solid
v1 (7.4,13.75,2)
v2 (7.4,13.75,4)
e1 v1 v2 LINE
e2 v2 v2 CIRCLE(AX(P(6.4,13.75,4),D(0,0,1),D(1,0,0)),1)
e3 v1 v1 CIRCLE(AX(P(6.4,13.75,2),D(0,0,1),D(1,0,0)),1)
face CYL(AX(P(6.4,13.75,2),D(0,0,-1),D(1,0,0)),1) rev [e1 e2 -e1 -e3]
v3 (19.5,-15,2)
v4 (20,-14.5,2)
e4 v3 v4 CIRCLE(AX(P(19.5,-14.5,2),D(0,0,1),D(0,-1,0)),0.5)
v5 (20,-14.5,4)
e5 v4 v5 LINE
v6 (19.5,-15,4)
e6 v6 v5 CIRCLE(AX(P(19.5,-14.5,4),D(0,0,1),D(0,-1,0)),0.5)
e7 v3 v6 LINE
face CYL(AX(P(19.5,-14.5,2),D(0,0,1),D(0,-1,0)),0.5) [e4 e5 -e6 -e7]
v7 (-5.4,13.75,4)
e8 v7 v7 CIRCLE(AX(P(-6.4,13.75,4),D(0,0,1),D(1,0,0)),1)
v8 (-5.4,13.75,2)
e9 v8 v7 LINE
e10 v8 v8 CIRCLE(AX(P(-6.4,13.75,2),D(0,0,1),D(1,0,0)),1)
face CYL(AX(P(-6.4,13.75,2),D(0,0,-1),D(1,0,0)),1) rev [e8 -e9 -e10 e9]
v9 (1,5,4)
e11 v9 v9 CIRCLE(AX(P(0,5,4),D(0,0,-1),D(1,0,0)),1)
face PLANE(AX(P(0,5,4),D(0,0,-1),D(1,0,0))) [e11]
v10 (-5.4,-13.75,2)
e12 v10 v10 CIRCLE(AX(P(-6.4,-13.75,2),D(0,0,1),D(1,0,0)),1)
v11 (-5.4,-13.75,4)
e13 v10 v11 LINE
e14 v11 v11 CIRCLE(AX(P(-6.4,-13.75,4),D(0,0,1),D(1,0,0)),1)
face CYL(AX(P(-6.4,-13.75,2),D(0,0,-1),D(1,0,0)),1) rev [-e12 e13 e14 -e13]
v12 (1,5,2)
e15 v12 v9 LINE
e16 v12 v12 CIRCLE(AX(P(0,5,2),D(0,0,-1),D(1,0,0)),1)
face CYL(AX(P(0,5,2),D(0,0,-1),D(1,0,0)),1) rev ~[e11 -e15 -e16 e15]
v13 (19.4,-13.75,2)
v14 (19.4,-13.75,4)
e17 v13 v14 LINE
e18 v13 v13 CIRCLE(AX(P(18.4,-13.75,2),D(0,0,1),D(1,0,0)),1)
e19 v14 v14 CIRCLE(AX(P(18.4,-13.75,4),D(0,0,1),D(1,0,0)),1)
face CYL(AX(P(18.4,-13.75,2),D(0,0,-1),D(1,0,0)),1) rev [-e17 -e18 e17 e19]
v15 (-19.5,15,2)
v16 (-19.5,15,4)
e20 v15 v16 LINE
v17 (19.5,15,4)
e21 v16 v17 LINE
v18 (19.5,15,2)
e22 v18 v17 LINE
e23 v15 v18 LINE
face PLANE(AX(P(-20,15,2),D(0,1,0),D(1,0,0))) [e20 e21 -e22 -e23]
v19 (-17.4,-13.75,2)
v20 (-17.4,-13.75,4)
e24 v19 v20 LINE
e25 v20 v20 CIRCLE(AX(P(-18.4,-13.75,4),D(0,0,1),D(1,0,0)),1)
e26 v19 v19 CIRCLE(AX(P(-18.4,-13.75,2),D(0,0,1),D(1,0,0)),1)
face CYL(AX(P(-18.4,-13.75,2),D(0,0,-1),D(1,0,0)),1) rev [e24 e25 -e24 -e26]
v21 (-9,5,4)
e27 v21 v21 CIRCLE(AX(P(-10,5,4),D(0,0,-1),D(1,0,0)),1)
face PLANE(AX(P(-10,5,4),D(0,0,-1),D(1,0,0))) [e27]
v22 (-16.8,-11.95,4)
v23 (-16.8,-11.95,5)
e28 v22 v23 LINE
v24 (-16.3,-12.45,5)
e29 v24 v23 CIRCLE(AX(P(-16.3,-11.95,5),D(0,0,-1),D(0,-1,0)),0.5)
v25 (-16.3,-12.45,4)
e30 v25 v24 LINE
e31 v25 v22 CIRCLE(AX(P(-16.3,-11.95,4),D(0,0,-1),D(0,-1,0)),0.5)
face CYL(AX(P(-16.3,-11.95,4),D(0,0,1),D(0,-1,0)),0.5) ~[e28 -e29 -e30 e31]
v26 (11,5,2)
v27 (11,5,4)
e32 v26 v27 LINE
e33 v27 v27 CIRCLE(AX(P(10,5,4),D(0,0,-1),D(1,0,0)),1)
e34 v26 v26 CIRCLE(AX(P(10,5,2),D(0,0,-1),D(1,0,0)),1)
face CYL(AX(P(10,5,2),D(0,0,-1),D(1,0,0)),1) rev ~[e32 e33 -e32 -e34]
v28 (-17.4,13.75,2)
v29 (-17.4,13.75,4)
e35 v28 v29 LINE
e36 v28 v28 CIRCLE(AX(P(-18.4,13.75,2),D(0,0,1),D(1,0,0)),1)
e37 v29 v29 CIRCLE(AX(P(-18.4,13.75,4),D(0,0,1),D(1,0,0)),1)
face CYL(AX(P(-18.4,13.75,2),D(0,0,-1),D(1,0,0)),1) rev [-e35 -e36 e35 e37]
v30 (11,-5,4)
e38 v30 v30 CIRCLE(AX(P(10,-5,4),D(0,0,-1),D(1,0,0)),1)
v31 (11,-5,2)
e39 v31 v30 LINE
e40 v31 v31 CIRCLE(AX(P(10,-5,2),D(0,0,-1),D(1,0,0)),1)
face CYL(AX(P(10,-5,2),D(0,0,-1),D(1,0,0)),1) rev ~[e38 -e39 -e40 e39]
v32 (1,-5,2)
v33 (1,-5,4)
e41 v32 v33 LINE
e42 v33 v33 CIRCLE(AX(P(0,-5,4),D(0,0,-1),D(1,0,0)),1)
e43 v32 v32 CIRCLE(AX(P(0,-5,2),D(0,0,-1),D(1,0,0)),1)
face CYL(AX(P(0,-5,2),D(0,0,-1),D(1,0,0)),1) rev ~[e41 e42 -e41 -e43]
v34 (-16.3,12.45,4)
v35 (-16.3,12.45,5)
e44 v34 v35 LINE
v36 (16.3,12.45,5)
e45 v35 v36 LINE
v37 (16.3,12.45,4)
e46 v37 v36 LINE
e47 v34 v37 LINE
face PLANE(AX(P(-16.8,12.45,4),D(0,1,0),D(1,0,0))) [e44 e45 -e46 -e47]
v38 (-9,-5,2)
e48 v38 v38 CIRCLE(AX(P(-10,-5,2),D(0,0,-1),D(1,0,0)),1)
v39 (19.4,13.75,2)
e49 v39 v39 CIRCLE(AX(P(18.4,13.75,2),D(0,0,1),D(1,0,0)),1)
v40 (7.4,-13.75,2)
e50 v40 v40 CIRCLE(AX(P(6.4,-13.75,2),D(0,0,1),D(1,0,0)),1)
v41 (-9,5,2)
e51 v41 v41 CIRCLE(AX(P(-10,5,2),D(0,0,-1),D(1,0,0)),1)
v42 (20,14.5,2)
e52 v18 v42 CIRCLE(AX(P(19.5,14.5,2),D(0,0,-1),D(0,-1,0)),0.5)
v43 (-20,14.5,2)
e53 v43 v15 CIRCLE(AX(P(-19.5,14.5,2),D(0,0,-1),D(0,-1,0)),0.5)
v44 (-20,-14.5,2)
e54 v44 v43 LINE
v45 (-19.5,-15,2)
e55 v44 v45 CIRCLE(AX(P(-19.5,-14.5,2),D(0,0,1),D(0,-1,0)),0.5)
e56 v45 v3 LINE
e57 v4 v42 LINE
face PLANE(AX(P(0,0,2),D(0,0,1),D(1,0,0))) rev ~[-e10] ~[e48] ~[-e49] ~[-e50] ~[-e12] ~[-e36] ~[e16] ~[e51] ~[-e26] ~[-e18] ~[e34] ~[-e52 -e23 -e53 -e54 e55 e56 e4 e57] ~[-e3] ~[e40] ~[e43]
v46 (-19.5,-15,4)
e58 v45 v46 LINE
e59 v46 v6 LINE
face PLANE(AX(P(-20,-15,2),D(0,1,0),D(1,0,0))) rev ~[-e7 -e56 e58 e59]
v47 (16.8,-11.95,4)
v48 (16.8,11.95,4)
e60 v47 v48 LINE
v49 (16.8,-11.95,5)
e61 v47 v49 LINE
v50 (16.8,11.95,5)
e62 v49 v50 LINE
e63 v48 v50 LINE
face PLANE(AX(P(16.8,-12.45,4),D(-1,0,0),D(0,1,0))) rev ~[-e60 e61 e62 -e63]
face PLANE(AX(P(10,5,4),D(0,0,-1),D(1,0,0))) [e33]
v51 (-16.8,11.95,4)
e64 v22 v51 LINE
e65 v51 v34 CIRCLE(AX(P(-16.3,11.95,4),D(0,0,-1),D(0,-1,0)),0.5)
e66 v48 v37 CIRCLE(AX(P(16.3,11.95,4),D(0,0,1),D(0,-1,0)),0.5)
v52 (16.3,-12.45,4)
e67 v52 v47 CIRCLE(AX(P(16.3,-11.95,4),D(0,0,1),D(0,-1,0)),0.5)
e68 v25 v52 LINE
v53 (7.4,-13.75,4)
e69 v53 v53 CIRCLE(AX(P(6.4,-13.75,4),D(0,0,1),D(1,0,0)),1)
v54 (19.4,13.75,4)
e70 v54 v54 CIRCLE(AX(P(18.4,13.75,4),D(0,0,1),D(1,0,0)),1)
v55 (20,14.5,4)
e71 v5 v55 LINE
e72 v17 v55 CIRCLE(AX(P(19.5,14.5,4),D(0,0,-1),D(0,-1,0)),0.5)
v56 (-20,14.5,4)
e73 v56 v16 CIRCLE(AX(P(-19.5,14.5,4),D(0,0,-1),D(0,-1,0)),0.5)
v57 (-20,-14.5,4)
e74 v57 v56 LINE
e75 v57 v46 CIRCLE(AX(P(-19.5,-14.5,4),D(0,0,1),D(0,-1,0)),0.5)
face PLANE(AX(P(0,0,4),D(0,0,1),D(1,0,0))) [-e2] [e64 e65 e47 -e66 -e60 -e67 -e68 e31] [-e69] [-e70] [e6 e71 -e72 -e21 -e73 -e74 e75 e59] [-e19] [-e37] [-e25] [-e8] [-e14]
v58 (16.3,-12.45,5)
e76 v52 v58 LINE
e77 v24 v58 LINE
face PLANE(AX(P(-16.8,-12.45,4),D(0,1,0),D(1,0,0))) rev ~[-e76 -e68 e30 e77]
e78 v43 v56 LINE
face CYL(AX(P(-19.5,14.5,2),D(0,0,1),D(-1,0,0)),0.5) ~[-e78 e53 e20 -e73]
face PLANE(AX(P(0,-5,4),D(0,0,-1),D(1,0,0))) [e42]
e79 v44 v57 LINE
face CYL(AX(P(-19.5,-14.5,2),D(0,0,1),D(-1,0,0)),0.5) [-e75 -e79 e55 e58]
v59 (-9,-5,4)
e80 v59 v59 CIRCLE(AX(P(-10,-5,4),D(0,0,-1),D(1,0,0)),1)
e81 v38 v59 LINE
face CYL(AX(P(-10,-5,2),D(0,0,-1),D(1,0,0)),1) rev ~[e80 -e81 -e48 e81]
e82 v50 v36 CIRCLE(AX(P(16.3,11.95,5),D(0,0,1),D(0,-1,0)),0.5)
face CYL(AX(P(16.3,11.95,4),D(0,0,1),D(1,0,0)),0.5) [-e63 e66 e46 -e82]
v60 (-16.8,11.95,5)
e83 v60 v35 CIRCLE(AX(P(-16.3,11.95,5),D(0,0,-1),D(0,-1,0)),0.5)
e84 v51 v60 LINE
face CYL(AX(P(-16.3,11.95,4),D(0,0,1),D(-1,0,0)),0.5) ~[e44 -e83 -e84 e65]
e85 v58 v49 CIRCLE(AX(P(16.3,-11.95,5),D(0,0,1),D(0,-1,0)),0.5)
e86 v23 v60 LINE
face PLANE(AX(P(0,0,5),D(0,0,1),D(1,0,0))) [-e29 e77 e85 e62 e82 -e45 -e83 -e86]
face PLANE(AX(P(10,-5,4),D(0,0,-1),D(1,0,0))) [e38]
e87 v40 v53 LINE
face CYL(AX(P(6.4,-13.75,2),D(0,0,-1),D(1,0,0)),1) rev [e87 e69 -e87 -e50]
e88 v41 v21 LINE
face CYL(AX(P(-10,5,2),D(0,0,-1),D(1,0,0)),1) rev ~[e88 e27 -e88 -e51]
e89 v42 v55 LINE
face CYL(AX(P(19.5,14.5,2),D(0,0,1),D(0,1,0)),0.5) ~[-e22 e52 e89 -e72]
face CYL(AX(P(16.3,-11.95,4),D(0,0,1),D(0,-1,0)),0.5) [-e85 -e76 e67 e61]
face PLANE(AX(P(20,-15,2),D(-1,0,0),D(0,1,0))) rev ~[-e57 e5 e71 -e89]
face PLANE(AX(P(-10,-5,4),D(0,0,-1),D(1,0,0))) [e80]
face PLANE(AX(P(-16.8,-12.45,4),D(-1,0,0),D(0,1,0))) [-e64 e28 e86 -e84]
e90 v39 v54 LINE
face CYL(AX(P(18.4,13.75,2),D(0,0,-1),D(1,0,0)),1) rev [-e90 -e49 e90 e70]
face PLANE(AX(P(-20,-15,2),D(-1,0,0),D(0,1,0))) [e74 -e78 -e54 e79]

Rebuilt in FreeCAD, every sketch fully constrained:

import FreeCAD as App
import Part
import Sketcher

V = App.Vector


def edges_at(feature, points):
    """Names of the edges that pass closest to the given points."""
    edges = feature.Shape.Edges
    near = lambda p: min(range(len(edges)), key=lambda i: edges[i].distToShape(Part.Vertex(*p))[0])
    return sorted({f"Edge{near(p) + 1}" for p in points})

doc = App.newDocument("Part")
body = doc.addObject("PartDesign::Body", "Body")

# Sketch on XY plane
sketch1 = body.newObject("Sketcher::SketchObject", "Sketch")
sketch1.AttachmentSupport = (doc.getObject("XY_Plane"), [""])
sketch1.MapMode = "FlatFace"
sketch1.AttachmentOffset = App.Placement(V(0, 0, 2), App.Rotation())
sketch1.addGeometry(Part.LineSegment(V(-20, 15, 0), V(-20, -15, 0)), False)
sketch1.addGeometry(Part.LineSegment(V(-20, -15, 0), V(20, -15, 0)), False)
sketch1.addGeometry(Part.LineSegment(V(20, -15, 0), V(20, 15, 0)), False)
sketch1.addGeometry(Part.LineSegment(V(20, 15, 0), V(-20, 15, 0)), False)
sketch1.addConstraint(Sketcher.Constraint("Coincident", 0, 2, 1, 1))
sketch1.addConstraint(Sketcher.Constraint("Coincident", 1, 2, 2, 1))
sketch1.addConstraint(Sketcher.Constraint("Coincident", 2, 2, 3, 1))
sketch1.addConstraint(Sketcher.Constraint("Coincident", 3, 2, 0, 1))
sketch1.addConstraint(Sketcher.Constraint("Vertical", 0))
sketch1.addConstraint(Sketcher.Constraint("Horizontal", 1))
sketch1.addConstraint(Sketcher.Constraint("Vertical", 2))
sketch1.addConstraint(Sketcher.Constraint("Horizontal", 3))
sketch1.addConstraint(Sketcher.Constraint("Symmetric", 0, 2, 2, 2, -1, 1))
sketch1.addConstraint(Sketcher.Constraint("DistanceX", 1, 1, 1, 2, 40.0))
sketch1.addConstraint(Sketcher.Constraint("DistanceY", 0, 2, 0, 1, 30.0))
pad1 = body.newObject("PartDesign::Pad", "Pad")
pad1.Profile = sketch1
pad1.Length = 2

# Sketch on XY plane
sketch2 = body.newObject("Sketcher::SketchObject", "Sketch001")
sketch2.AttachmentSupport = (doc.getObject("XY_Plane"), [""])
sketch2.MapMode = "FlatFace"
sketch2.AttachmentOffset = App.Placement(V(0, 0, 4), App.Rotation())
sketch2.addGeometry(Part.LineSegment(V(-17, 12, 0), V(-17, -12, 0)), False)
sketch2.addGeometry(Part.LineSegment(V(-17, -12, 0), V(17, -12, 0)), False)
sketch2.addGeometry(Part.LineSegment(V(17, -12, 0), V(17, 12, 0)), False)
sketch2.addGeometry(Part.LineSegment(V(17, 12, 0), V(-17, 12, 0)), False)
sketch2.addConstraint(Sketcher.Constraint("Coincident", 0, 2, 1, 1))
sketch2.addConstraint(Sketcher.Constraint("Coincident", 1, 2, 2, 1))
sketch2.addConstraint(Sketcher.Constraint("Coincident", 2, 2, 3, 1))
sketch2.addConstraint(Sketcher.Constraint("Coincident", 3, 2, 0, 1))
sketch2.addConstraint(Sketcher.Constraint("Vertical", 0))
sketch2.addConstraint(Sketcher.Constraint("Horizontal", 1))
sketch2.addConstraint(Sketcher.Constraint("Vertical", 2))
sketch2.addConstraint(Sketcher.Constraint("Horizontal", 3))
sketch2.addConstraint(Sketcher.Constraint("Symmetric", 0, 2, 2, 2, -1, 1))
sketch2.addConstraint(Sketcher.Constraint("DistanceX", 1, 1, 1, 2, 33.6))
sketch2.addConstraint(Sketcher.Constraint("DistanceY", 0, 2, 0, 1, 24.9))
pad2 = body.newObject("PartDesign::Pad", "Pad001")
pad2.Profile = sketch2
pad2.Length = 1

# Sketch on XY plane
sketch3 = body.newObject("Sketcher::SketchObject", "Sketch002")
sketch3.AttachmentSupport = (doc.getObject("XY_Plane"), [""])
sketch3.MapMode = "FlatFace"
sketch3.AttachmentOffset = App.Placement(V(0, 0, 2), App.Rotation())
sketch3.addGeometry(Part.Circle(V(-18.4, 13.8, 0), V(0, 0, 1), 1), False)
sketch3.addGeometry(Part.Circle(V(-6.4, 13.8, 0), V(0, 0, 1), 1), False)
sketch3.addGeometry(Part.Circle(V(6.4, 13.8, 0), V(0, 0, 1), 1), False)
sketch3.addGeometry(Part.Circle(V(18.4, 13.8, 0), V(0, 0, 1), 1), False)
sketch3.addGeometry(Part.Circle(V(18.4, -13.8, 0), V(0, 0, 1), 1), False)
sketch3.addGeometry(Part.Circle(V(6.4, -13.8, 0), V(0, 0, 1), 1), False)
sketch3.addGeometry(Part.Circle(V(-6.4, -13.8, 0), V(0, 0, 1), 1), False)
sketch3.addGeometry(Part.Circle(V(-18.4, -13.8, 0), V(0, 0, 1), 1), False)
sketch3.addConstraint(Sketcher.Constraint("Equal", 0, 1))
sketch3.addConstraint(Sketcher.Constraint("Equal", 1, 2))
sketch3.addConstraint(Sketcher.Constraint("Equal", 2, 3))
sketch3.addConstraint(Sketcher.Constraint("Equal", 3, 4))
sketch3.addConstraint(Sketcher.Constraint("Equal", 4, 5))
sketch3.addConstraint(Sketcher.Constraint("Equal", 5, 6))
sketch3.addConstraint(Sketcher.Constraint("Equal", 6, 7))
sketch3.addConstraint(Sketcher.Constraint("Symmetric", 0, 3, 4, 3, -1, 1))
sketch3.addConstraint(Sketcher.Constraint("Symmetric", 1, 3, 5, 3, -1, 1))
sketch3.addConstraint(Sketcher.Constraint("Symmetric", 2, 3, 6, 3, -1, 1))
sketch3.addConstraint(Sketcher.Constraint("Symmetric", 3, 3, 7, 3, -1, 1))
sketch3.addConstraint(Sketcher.Constraint("Symmetric", 1, 3, 2, 3, -2))
sketch3.addConstraint(Sketcher.Constraint("Symmetric", 0, 3, 3, 3, -2))
sketch3.addConstraint(Sketcher.Constraint("Horizontal", 0, 3, 1, 3))
sketch3.addConstraint(Sketcher.Constraint("Diameter", 0, 2.0))
sketch3.addConstraint(Sketcher.Constraint("DistanceX", 0, 3, 1, 3, 12.0))
sketch3.addConstraint(Sketcher.Constraint("DistanceX", 0, 3, -1, 1, 18.4))
sketch3.addConstraint(Sketcher.Constraint("DistanceY", 4, 3, 3, 3, 27.5))
pocket1 = body.newObject("PartDesign::Pocket", "Pocket")
pocket1.Profile = sketch3
pocket1.Length = 2
pocket1.Reversed = True
doc.recompute()

fillet = body.newObject("PartDesign::Fillet", "Fillet")
fillet.Base = (pocket1, edges_at(pocket1, [
    (20, 15, 3),
    (16.8, 12.45, 4.5),
    (20, -15, 3),
    (16.8, -12.45, 4.5),
    (-20, -15, 3),
    (-16.8, -12.45, 4.5),
    (-20, 15, 3),
    (-16.8, 12.45, 4.5),
]))
fillet.Radius = 0.5

# Sketch on XY plane
sketch4 = body.newObject("Sketcher::SketchObject", "Sketch003")
sketch4.AttachmentSupport = (doc.getObject("XY_Plane"), [""])
sketch4.MapMode = "FlatFace"
sketch4.AttachmentOffset = App.Placement(V(0, 0, 2), App.Rotation())
sketch4.addGeometry(Part.Circle(V(-10, -5, 0), V(0, 0, 1), 1), False)
sketch4.addGeometry(Part.Circle(V(0, -5, 0), V(0, 0, 1), 1), False)
sketch4.addGeometry(Part.Circle(V(10, -5, 0), V(0, 0, 1), 1), False)
sketch4.addGeometry(Part.Circle(V(-10, 5, 0), V(0, 0, 1), 1), False)
sketch4.addGeometry(Part.Circle(V(0, 5, 0), V(0, 0, 1), 1), False)
sketch4.addGeometry(Part.Circle(V(10, 5, 0), V(0, 0, 1), 1), False)
sketch4.addConstraint(Sketcher.Constraint("Equal", 0, 1))
sketch4.addConstraint(Sketcher.Constraint("Equal", 1, 2))
sketch4.addConstraint(Sketcher.Constraint("Equal", 2, 3))
sketch4.addConstraint(Sketcher.Constraint("Equal", 3, 4))
sketch4.addConstraint(Sketcher.Constraint("Equal", 4, 5))
sketch4.addConstraint(Sketcher.Constraint("Symmetric", 2, 3, 3, 3, -1, 1))
sketch4.addConstraint(Sketcher.Constraint("Symmetric", 1, 3, 4, 3, -1, 1))
sketch4.addConstraint(Sketcher.Constraint("Symmetric", 0, 3, 5, 3, -1, 1))
sketch4.addConstraint(Sketcher.Constraint("Symmetric", 0, 3, 2, 3, -2))
sketch4.addConstraint(Sketcher.Constraint("PointOnObject", 1, 3, -2))
sketch4.addConstraint(Sketcher.Constraint("Horizontal", 0, 3, 1, 3))
sketch4.addConstraint(Sketcher.Constraint("Diameter", 0, 2.0))
sketch4.addConstraint(Sketcher.Constraint("DistanceX", 0, 3, -1, 1, 10.0))
sketch4.addConstraint(Sketcher.Constraint("DistanceY", 0, 3, -1, 1, 5.0))
pocket2 = body.newObject("PartDesign::Pocket", "Pocket001")
pocket2.Profile = sketch4
pocket2.Length = 2
pocket2.Reversed = True

doc.recompute()
